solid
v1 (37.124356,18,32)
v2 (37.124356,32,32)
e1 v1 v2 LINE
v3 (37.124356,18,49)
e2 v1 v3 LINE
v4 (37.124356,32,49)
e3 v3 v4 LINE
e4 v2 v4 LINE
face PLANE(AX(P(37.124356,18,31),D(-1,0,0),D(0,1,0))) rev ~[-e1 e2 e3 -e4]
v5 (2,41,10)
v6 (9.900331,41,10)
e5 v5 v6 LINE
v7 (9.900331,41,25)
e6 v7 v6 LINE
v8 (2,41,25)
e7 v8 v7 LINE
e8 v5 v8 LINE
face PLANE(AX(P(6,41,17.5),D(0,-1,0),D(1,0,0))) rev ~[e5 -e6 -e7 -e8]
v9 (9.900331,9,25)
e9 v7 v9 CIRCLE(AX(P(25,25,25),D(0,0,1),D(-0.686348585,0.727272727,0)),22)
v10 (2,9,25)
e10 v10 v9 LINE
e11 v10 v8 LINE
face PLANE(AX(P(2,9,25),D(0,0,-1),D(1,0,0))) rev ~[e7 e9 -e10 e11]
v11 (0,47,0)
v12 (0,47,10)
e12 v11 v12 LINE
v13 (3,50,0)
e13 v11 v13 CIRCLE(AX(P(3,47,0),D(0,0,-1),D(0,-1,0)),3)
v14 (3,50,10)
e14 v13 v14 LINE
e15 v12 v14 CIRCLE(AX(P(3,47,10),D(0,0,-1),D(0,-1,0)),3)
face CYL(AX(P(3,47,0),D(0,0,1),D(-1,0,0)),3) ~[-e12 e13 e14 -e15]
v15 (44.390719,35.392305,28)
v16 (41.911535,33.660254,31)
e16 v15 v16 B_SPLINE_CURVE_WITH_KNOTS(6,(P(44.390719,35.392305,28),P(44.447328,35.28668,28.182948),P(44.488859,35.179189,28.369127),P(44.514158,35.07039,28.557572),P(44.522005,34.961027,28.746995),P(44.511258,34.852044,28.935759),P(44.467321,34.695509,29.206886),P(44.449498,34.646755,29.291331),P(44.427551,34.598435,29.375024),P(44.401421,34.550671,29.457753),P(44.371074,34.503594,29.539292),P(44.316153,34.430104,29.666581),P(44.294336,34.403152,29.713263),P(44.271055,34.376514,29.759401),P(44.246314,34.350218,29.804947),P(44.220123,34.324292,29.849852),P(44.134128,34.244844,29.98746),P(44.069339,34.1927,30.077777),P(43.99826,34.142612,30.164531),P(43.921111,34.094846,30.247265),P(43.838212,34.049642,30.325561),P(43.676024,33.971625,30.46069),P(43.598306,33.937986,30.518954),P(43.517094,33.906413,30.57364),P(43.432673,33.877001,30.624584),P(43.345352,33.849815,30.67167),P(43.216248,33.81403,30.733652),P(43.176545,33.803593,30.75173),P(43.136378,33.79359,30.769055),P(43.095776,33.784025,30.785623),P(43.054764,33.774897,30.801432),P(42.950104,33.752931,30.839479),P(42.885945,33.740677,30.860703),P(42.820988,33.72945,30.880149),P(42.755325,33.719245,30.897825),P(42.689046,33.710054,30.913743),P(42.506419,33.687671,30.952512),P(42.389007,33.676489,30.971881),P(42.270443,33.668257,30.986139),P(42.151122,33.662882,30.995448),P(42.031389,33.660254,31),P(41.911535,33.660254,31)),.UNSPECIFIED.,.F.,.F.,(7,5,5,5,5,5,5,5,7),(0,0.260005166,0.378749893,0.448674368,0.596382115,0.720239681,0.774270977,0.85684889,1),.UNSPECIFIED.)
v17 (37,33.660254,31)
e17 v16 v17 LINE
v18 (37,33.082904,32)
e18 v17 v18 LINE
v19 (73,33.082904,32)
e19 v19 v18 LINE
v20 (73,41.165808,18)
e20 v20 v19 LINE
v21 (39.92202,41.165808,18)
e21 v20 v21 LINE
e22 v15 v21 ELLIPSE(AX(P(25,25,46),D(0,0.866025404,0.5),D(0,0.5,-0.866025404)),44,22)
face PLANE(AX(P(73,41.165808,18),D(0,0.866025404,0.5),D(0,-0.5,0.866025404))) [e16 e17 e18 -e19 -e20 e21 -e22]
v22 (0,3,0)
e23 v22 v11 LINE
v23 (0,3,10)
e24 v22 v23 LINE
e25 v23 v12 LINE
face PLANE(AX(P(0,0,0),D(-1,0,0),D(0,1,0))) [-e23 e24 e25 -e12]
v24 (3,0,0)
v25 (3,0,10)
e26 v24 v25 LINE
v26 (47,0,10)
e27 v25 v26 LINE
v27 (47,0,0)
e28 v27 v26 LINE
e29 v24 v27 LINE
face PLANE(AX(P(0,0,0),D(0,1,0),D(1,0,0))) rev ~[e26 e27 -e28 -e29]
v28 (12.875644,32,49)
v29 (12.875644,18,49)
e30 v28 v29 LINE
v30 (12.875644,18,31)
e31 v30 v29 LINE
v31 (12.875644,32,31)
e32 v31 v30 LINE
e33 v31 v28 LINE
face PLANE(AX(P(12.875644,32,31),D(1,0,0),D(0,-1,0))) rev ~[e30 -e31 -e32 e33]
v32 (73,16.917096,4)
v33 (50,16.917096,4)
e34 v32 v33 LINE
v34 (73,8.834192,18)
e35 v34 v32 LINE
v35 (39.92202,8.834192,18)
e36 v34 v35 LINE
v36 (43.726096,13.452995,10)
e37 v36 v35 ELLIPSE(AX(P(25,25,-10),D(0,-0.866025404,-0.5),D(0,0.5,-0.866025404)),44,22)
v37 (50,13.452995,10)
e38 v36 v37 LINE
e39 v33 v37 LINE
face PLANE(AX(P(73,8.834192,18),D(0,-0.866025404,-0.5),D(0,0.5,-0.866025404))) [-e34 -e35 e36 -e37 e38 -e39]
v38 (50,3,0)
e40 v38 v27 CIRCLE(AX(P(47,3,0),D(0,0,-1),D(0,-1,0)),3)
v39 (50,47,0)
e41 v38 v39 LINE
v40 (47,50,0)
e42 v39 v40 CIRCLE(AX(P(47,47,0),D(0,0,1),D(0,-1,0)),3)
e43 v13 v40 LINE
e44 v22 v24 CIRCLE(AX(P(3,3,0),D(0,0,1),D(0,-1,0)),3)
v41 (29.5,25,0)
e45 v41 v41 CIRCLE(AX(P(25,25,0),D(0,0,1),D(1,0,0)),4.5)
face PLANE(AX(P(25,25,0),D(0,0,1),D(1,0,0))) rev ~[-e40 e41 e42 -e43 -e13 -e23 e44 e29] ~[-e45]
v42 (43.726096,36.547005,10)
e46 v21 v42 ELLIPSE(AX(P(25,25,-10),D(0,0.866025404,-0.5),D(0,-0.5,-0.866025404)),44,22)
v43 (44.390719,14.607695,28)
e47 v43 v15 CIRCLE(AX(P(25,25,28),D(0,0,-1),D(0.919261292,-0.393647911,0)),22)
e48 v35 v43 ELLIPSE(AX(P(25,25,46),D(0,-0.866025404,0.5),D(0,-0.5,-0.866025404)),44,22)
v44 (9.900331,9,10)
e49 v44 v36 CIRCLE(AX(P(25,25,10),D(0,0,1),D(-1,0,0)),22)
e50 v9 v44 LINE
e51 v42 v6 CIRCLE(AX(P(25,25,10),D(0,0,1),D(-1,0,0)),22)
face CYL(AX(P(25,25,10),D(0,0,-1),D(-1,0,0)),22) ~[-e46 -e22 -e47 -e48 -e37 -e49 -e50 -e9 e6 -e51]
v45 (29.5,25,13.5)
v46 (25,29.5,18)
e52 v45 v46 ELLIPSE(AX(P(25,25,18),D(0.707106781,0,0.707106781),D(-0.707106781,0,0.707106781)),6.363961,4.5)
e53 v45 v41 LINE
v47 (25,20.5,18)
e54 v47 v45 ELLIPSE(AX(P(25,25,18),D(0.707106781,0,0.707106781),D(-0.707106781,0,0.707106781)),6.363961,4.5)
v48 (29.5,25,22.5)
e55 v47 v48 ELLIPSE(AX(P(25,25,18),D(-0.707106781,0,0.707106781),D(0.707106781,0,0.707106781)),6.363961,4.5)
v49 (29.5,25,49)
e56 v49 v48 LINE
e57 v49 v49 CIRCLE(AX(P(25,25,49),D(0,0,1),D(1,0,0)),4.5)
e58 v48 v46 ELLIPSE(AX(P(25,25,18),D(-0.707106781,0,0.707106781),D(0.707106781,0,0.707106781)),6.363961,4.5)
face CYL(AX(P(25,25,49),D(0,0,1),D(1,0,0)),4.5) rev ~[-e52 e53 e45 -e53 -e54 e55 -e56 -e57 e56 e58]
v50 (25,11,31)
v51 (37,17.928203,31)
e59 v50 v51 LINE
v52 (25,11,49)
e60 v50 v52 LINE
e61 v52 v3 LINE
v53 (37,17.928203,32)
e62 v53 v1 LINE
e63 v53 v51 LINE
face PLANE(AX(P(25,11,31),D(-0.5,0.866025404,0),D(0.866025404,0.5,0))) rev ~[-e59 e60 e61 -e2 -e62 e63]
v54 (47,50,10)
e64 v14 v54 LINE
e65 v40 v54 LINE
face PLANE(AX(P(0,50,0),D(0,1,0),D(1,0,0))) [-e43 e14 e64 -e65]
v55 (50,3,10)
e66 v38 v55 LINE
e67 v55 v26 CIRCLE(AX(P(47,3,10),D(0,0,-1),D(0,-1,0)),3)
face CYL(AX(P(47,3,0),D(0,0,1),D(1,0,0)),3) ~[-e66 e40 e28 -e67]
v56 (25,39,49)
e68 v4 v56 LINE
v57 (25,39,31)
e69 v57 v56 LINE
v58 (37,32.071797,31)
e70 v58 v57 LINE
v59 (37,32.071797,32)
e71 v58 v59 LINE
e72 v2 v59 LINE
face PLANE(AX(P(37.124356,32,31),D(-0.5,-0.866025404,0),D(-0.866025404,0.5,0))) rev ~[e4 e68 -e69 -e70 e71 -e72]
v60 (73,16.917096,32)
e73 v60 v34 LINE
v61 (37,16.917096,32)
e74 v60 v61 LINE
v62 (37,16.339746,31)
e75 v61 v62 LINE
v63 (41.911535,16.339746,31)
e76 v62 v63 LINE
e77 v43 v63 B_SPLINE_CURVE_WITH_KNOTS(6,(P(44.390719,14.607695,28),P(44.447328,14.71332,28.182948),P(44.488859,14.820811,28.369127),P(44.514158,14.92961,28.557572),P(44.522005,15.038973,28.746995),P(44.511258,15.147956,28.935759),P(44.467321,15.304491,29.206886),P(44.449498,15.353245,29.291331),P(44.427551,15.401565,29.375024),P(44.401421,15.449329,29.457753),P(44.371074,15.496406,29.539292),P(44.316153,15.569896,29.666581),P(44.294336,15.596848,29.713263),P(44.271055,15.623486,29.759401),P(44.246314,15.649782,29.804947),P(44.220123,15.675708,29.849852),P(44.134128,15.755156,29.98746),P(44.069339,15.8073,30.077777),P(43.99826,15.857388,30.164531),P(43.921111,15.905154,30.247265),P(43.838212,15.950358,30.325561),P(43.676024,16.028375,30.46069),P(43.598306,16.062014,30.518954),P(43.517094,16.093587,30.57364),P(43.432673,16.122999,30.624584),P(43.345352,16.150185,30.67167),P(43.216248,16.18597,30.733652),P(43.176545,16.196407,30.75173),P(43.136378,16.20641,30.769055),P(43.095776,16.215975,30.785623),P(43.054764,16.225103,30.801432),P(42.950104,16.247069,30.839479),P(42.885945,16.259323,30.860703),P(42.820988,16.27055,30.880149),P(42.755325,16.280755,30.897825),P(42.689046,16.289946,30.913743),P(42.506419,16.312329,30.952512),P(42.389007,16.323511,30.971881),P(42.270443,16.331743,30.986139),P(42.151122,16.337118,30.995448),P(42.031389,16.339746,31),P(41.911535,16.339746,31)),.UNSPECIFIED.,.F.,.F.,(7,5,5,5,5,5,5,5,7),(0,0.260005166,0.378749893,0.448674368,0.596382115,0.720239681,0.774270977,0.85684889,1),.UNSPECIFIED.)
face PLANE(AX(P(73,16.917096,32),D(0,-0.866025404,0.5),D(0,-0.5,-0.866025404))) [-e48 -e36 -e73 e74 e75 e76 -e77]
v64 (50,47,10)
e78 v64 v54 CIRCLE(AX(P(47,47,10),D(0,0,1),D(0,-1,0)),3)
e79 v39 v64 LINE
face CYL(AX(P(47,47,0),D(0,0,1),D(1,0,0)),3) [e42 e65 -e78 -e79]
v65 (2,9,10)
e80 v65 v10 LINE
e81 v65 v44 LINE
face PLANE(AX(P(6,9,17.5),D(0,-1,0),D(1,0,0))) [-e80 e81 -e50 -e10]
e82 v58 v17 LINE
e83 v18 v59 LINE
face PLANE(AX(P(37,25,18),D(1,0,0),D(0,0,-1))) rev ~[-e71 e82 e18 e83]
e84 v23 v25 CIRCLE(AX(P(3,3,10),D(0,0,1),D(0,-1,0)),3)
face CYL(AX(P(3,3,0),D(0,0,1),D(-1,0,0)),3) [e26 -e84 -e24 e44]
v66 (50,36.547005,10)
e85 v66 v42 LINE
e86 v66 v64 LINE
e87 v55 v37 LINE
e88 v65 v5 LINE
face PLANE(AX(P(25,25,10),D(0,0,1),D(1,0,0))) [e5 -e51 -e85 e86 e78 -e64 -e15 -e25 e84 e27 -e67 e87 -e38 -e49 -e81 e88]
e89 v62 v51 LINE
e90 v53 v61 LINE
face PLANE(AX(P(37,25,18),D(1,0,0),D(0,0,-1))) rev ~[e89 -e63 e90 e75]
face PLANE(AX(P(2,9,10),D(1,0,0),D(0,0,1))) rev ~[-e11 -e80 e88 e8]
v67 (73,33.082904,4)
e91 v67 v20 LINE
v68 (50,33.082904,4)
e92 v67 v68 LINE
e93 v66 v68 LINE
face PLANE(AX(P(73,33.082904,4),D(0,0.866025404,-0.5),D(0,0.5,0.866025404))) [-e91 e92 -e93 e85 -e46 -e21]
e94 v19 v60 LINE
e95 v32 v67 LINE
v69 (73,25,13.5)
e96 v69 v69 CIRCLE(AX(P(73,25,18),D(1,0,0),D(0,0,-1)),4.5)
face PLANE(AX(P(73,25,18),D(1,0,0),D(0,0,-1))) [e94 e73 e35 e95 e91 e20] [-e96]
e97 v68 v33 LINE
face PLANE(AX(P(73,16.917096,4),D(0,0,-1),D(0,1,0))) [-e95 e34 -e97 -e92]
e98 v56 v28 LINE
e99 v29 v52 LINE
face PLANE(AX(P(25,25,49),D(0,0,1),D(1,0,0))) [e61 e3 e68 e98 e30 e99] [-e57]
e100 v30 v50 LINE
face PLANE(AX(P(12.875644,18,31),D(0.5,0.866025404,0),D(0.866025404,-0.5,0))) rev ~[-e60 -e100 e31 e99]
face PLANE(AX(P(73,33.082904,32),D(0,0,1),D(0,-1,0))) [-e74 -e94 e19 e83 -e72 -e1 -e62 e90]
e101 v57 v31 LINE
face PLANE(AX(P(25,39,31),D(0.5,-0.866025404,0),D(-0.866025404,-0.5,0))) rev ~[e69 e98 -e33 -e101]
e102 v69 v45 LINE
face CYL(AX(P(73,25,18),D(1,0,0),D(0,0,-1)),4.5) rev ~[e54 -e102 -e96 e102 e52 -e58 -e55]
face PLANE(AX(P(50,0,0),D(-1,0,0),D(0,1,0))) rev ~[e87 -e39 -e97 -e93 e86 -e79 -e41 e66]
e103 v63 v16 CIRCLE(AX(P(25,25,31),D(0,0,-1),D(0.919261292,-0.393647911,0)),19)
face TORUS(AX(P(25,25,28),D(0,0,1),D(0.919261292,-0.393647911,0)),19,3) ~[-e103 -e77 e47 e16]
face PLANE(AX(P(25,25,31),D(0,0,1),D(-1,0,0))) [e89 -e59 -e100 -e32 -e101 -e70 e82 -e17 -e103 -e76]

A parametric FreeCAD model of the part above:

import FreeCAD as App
import Part
import Sketcher
Q = App.Units.Quantity


def edges_at(feature, points):
    """Names of the edges that pass closest to the given points."""
    edges = feature.Shape.Edges
    near = lambda p: min(range(len(edges)), key=lambda i: edges[i].distToShape(Part.Vertex(*p))[0])
    return sorted({f"Edge{near(p) + 1}" for p in points})

doc = App.newDocument("Part")
body = doc.addObject("PartDesign::Body", "Body")

# Sketch on XY plane
sketch1 = body.newObject("Sketcher::SketchObject", "Sketch")
sketch1.AttachmentSupport = (doc.getObject("XY_Plane"), [""])
sketch1.MapMode = "FlatFace"
sketch1.addGeometry([
    Part.LineSegment(App.Vector(0, 50, 0), App.Vector(0, 0, 0)),
    Part.LineSegment(App.Vector(0, 0, 0), App.Vector(50, 0, 0)),
    Part.LineSegment(App.Vector(50, 0, 0), App.Vector(50, 50, 0)),
    Part.LineSegment(App.Vector(50, 50, 0), App.Vector(0, 50, 0)),
], False)
sketch1.addConstraint([
    Sketcher.Constraint("Coincident", 0, 2, 1, 1),
    Sketcher.Constraint("Coincident", 1, 2, 2, 1),
    Sketcher.Constraint("Coincident", 2, 2, 3, 1),
    Sketcher.Constraint("Coincident", 3, 2, 0, 1),
    Sketcher.Constraint("Vertical", 0),
    Sketcher.Constraint("Horizontal", 1),
    Sketcher.Constraint("Vertical", 2),
    Sketcher.Constraint("Horizontal", 3),
    Sketcher.Constraint("Coincident", 0, 2, -1, 1),
    Sketcher.Constraint("Equal", 3, 0),
    Sketcher.Constraint("DistanceX", 1, 1, 1, 2, Q("50 mm")),
])
pad1 = body.newObject("PartDesign::Pad", "Pad")
pad1.Profile = sketch1
pad1.Length = 10

# Sketch on XY plane
sketch2 = body.newObject("Sketcher::SketchObject", "Sketch001")
sketch2.AttachmentSupport = (doc.getObject("XY_Plane"), [""])
sketch2.MapMode = "FlatFace"
sketch2.AttachmentOffset = App.Placement(App.Vector(0, 0, 10), App.Rotation())
sketch2.addGeometry(Part.Circle(App.Vector(25, 25, 0), App.Vector(0, 0, 1), 22), False)
sketch2.addConstraint([
    Sketcher.Constraint("Diameter", 0, Q("44 mm")),
    Sketcher.Constraint("DistanceX", -1, 1, 0, 3, Q("25 mm")),
    Sketcher.Constraint("DistanceY", -1, 1, 0, 3, Q("25 mm")),
])
pad2 = body.newObject("PartDesign::Pad", "Pad001")
pad2.Profile = sketch2
pad2.Length = 21

# Sketch on XY plane
sketch3 = body.newObject("Sketcher::SketchObject", "Sketch002")
sketch3.AttachmentSupport = (doc.getObject("XY_Plane"), [""])
sketch3.MapMode = "FlatFace"
sketch3.AttachmentOffset = App.Placement(App.Vector(0, 0, 31), App.Rotation())
sketch3.addGeometry([
    Part.LineSegment(App.Vector(25, 11, 0), App.Vector(37, 18, 0)),  # 0
    Part.LineSegment(App.Vector(37, 18, 0), App.Vector(37, 32, 0)),  # 1
    Part.LineSegment(App.Vector(37, 32, 0), App.Vector(25, 39, 0)),  # 2
    Part.LineSegment(App.Vector(25, 39, 0), App.Vector(13, 32, 0)),  # 3
    Part.LineSegment(App.Vector(13, 32, 0), App.Vector(13, 18, 0)),  # 4
    Part.LineSegment(App.Vector(13, 18, 0), App.Vector(25, 11, 0)),  # 5
], False)
sketch3.addConstraint([
    Sketcher.Constraint("Coincident", 0, 2, 1, 1),
    Sketcher.Constraint("Coincident", 1, 2, 2, 1),
    Sketcher.Constraint("Coincident", 2, 2, 3, 1),
    Sketcher.Constraint("Coincident", 3, 2, 4, 1),
    Sketcher.Constraint("Coincident", 4, 2, 5, 1),
    Sketcher.Constraint("Coincident", 5, 2, 0, 1),
    Sketcher.Constraint("Vertical", 1),
    Sketcher.Constraint("Vertical", 4),
    Sketcher.Constraint("Parallel", 0, 3),
    Sketcher.Constraint("Parallel", 2, 5),
    Sketcher.Constraint("Horizontal", 1, 2, 3, 2),
    Sketcher.Constraint("Horizontal", 0, 2, 4, 2),
    Sketcher.Constraint("Vertical", 2, 2, 5, 2),
    Sketcher.Constraint("DistanceY", 1, 1, 1, 2, Q("14 mm")),
    Sketcher.Constraint("Angle", 0, Q("30 deg")),
    Sketcher.Constraint("Distance", 0, Q("14 mm")),
    Sketcher.Constraint("DistanceY", -1, 1, 0, 2, Q("18 mm")),
    Sketcher.Constraint("DistanceX", -1, 1, 2, 2, Q("25 mm")),
])
pad3 = body.newObject("PartDesign::Pad", "Pad002")
pad3.Profile = sketch3
pad3.Length = 18

# Sketch on XY plane
sketch4 = body.newObject("Sketcher::SketchObject", "Sketch003")
sketch4.AttachmentSupport = (doc.getObject("XY_Plane"), [""])
sketch4.MapMode = "FlatFace"
sketch4.AttachmentOffset = App.Placement(App.Vector(0, 0, 49), App.Rotation())
sketch4.addGeometry(Part.Circle(App.Vector(25, 25, 0), App.Vector(0, 0, 1), 4.5), False)
sketch4.addConstraint([
    Sketcher.Constraint("Diameter", 0, Q("9 mm")),
    Sketcher.Constraint("DistanceX", -1, 1, 0, 3, Q("25 mm")),
    Sketcher.Constraint("DistanceY", -1, 1, 0, 3, Q("25 mm")),
])
pocket1 = body.newObject("PartDesign::Pocket", "Pocket")
pocket1.Profile = sketch4
pocket1.Type = "ThroughAll"

# Sketch on XZ plane
sketch5 = body.newObject("Sketcher::SketchObject", "Sketch004")
sketch5.AttachmentSupport = (doc.getObject("XZ_Plane"), [""])
sketch5.MapMode = "FlatFace"
sketch5.AttachmentOffset = App.Placement(App.Vector(0, 0, -9), App.Rotation())
sketch5.addGeometry([
    Part.LineSegment(App.Vector(2, 25, 0), App.Vector(2, 10, 0)),
    Part.LineSegment(App.Vector(2, 10, 0), App.Vector(10, 10, 0)),
    Part.LineSegment(App.Vector(10, 10, 0), App.Vector(10, 25, 0)),
    Part.LineSegment(App.Vector(10, 25, 0), App.Vector(2, 25, 0)),
], False)
sketch5.addConstraint([
    Sketcher.Constraint("Coincident", 0, 2, 1, 1),
    Sketcher.Constraint("Coincident", 1, 2, 2, 1),
    Sketcher.Constraint("Coincident", 2, 2, 3, 1),
    Sketcher.Constraint("Coincident", 3, 2, 0, 1),
    Sketcher.Constraint("Vertical", 0),
    Sketcher.Constraint("Horizontal", 1),
    Sketcher.Constraint("Vertical", 2),
    Sketcher.Constraint("Horizontal", 3),
    Sketcher.Constraint("DistanceX", 1, 1, 1, 2, Q("8 mm")),
    Sketcher.Constraint("DistanceY", 0, 2, 0, 1, Q("15 mm")),
    Sketcher.Constraint("DistanceX", -1, 1, 0, 2, Q("2 mm")),
    Sketcher.Constraint("DistanceY", -1, 1, 0, 2, Q("10 mm")),
])
pad4 = body.newObject("PartDesign::Pad", "Pad003")
pad4.Profile = sketch5
pad4.Length = 32
pad4.Reversed = True

# Sketch on YZ plane
sketch6 = body.newObject("Sketcher::SketchObject", "Sketch005")
sketch6.AttachmentSupport = (doc.getObject("YZ_Plane"), [""])
sketch6.MapMode = "FlatFace"
sketch6.AttachmentOffset = App.Placement(App.Vector(0, 0, 73), App.Rotation())
sketch6.addGeometry([
    Part.LineSegment(App.Vector(17, 4, 0), App.Vector(33, 4, 0)),  # 0
    Part.LineSegment(App.Vector(33, 4, 0), App.Vector(41, 18, 0)),  # 1
    Part.LineSegment(App.Vector(41, 18, 0), App.Vector(33, 32, 0)),  # 2
    Part.LineSegment(App.Vector(33, 32, 0), App.Vector(17, 32, 0)),  # 3
    Part.LineSegment(App.Vector(17, 32, 0), App.Vector(9, 18, 0)),  # 4
    Part.LineSegment(App.Vector(9, 18, 0), App.Vector(17, 4, 0)),  # 5
], False)
sketch6.addConstraint([
    Sketcher.Constraint("Coincident", 0, 2, 1, 1),
    Sketcher.Constraint("Coincident", 1, 2, 2, 1),
    Sketcher.Constraint("Coincident", 2, 2, 3, 1),
    Sketcher.Constraint("Coincident", 3, 2, 4, 1),
    Sketcher.Constraint("Coincident", 4, 2, 5, 1),
    Sketcher.Constraint("Coincident", 5, 2, 0, 1),
    Sketcher.Constraint("Horizontal", 0),
    Sketcher.Constraint("Horizontal", 3),
    Sketcher.Constraint("Parallel", 1, 4),
    Sketcher.Constraint("Parallel", 2, 5),
    Sketcher.Constraint("Horizontal", 1, 2, 4, 2),
    Sketcher.Constraint("Vertical", 0, 2, 2, 2),
    Sketcher.Constraint("Vertical", 3, 2, 5, 2),
    Sketcher.Constraint("Angle", 1, Q("60 deg")),
    Sketcher.Constraint("DistanceY", -1, 1, 0, 2, Q("4 mm")),
    Sketcher.Constraint("DistanceY", -1, 1, 1, 2, Q("18 mm")),
    Sketcher.Constraint("DistanceX", 0, 1, 0, 2, Q("16.165808 mm")),
    Sketcher.Constraint("DistanceX", -1, 1, 0, 2, Q("33.082904 mm")),
])
pad5 = body.newObject("PartDesign::Pad", "Pad004")
pad5.Profile = sketch6
pad5.Length = 36
pad5.Reversed = True

# Sketch on YZ plane
sketch7 = body.newObject("Sketcher::SketchObject", "Sketch006")
sketch7.AttachmentSupport = (doc.getObject("YZ_Plane"), [""])
sketch7.MapMode = "FlatFace"
sketch7.AttachmentOffset = App.Placement(App.Vector(0, 0, 73), App.Rotation())
sketch7.addGeometry(Part.Circle(App.Vector(25, 18, 0), App.Vector(0, 0, 1), 4.5), False)
sketch7.addConstraint([
    Sketcher.Constraint("Diameter", 0, Q("9 mm")),
    Sketcher.Constraint("DistanceX", -1, 1, 0, 3, Q("25 mm")),
    Sketcher.Constraint("DistanceY", -1, 1, 0, 3, Q("18 mm")),
])
pocket2 = body.newObject("PartDesign::Pocket", "Pocket001")
pocket2.Profile = sketch7
pocket2.Length = 48
doc.recompute()

fillet = body.newObject("PartDesign::Fillet", "Fillet")
fillet.Base = (pocket2, edges_at(pocket2, [(3, 25, 31)]))
fillet.Radius = 3
doc.recompute()

fillet2 = body.newObject("PartDesign::Fillet", "Fillet001")
fillet2.Base = (fillet, edges_at(fillet, [
    (0, 50, 5),
    (50, 50, 5),
    (50, 0, 5),
    (0, 0, 5),
]))
fillet2.Radius = 3

doc.recompute()
